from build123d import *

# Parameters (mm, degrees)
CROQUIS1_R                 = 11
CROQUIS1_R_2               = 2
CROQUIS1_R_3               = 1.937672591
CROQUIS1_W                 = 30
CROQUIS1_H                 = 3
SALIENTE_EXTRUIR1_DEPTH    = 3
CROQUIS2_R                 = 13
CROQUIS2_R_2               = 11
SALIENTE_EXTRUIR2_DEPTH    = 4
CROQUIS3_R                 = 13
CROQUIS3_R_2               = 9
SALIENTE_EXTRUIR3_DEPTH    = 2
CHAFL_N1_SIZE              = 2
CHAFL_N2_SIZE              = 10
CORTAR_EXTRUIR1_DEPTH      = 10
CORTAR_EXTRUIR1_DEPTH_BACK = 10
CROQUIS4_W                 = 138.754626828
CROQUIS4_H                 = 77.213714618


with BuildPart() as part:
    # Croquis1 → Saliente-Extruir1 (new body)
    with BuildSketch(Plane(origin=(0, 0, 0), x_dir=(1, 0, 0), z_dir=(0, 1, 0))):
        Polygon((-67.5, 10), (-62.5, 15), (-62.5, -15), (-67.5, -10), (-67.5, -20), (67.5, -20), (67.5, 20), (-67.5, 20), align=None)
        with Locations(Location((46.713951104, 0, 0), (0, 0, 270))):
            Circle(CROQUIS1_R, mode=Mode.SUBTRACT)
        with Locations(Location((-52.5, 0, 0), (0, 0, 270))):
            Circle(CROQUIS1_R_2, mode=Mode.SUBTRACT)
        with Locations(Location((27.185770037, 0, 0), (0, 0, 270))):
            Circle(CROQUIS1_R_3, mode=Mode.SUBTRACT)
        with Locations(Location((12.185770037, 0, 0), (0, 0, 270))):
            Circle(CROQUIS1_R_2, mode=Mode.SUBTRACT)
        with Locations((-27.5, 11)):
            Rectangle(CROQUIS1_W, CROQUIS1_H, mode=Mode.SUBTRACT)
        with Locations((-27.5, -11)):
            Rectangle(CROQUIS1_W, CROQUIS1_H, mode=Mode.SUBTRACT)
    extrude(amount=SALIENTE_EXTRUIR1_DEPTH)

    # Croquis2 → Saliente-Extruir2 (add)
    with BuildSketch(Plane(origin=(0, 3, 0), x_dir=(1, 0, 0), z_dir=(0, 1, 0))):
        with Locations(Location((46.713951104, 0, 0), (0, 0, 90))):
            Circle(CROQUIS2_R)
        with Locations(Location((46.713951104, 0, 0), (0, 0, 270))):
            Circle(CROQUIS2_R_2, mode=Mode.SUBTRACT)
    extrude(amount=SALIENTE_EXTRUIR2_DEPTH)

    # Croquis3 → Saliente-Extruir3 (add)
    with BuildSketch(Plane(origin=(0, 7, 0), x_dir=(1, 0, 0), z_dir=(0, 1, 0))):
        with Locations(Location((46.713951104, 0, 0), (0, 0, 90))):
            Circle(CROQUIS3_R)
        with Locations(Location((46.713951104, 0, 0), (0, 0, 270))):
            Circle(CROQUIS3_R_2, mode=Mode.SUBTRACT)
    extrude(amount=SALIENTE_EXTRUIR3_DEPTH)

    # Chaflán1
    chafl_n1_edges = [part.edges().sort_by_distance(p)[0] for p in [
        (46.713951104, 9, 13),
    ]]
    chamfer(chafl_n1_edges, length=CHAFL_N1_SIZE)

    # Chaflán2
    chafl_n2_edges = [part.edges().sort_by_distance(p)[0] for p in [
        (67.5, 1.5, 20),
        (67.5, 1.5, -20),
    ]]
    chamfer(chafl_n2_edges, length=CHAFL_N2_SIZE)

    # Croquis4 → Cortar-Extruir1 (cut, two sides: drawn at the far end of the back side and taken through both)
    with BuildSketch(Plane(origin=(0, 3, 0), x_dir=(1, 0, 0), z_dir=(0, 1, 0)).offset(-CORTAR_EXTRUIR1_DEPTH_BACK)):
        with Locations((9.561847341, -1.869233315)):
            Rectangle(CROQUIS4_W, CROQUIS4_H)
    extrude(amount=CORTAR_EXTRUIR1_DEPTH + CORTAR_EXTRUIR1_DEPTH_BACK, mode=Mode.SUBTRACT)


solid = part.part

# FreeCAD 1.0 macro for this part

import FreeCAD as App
import Part
import Sketcher
from FreeCAD import Vector
Q = App.Units.Quantity


def edges_at(feature, points):
    """Names of the edges that pass closest to the given points."""
    edges = feature.Shape.Edges
    near = lambda p: min(range(len(edges)), key=lambda i: edges[i].distToShape(Part.Vertex(*p))[0])
    return sorted({f"Edge{near(p) + 1}" for p in points})


def add_polygon(sketch, points):
    """Adds a closed chain of lines whose ends are joined by coincident constraints."""
    first, n = sketch.GeometryCount, len(points)
    for a, b in zip(points, points[1:] + points[:1]):
        sketch.addGeometry(Part.LineSegment(App.Vector(*a, 0), App.Vector(*b, 0)), False)
    for i in range(n):
        sketch.addConstraint(Sketcher.Constraint("Coincident", first + i, 2, first + (i + 1) % n, 1))

doc = App.newDocument("Part")
body = doc.addObject("PartDesign::Body", "Body")

sketch1 = doc.addObject("Sketcher::SketchObject", "Sketch")
body.addObject(sketch1)
sketch1.AttachmentSupport = (doc.XZ_Plane, [""])
sketch1.MapMode = "FlatFace"
add_polygon(sketch1, [(-67.5, -10), (-62.5, -15), (-62.5, 15), (-67.5, 10), (-67.5, 20), (67.5, 20), (67.5, -20), (-67.5, -20)])
add_polygon(sketch1, [(-12.5, 12.5), (-42.5, 12.5), (-42.5, 9.5), (-12.5, 9.5)])
sketch1.addGeometry(Part.Circle(Vector(-52.5, 0, 0), Vector(0, 0, 1), 2), False)
add_polygon(sketch1, [(-12.5, -9.5), (-42.5, -9.5), (-42.5, -12.5), (-12.5, -12.5)])
sketch1.addGeometry(Part.Circle(Vector(12.2, 0, 0), Vector(0, 0, 1), 2), False)
sketch1.addGeometry(Part.Circle(Vector(27.2, 0, 0), Vector(0, 0, 1), 1.9), False)
sketch1.addGeometry(Part.Circle(Vector(46.7, 0, 0), Vector(0, 0, 1), 11), False)
sketch1.addConstraint([
    Sketcher.Constraint("Vertical", 1),
    Sketcher.Constraint("Vertical", 3),
    Sketcher.Constraint("Horizontal", 4),
    Sketcher.Constraint("Vertical", 5),
    Sketcher.Constraint("Horizontal", 6),
    Sketcher.Constraint("Vertical", 7),
    Sketcher.Constraint("Horizontal", 8),
    Sketcher.Constraint("Vertical", 9),
    Sketcher.Constraint("Horizontal", 10),
    Sketcher.Constraint("Vertical", 11),
    Sketcher.Constraint("Horizontal", 13),
    Sketcher.Constraint("Vertical", 14),
    Sketcher.Constraint("Horizontal", 15),
    Sketcher.Constraint("Vertical", 16),
    Sketcher.Constraint("Equal", 12, 17),
    Sketcher.Constraint("Symmetric", 3, 2, 5, 2, -1, 1),
    Sketcher.Constraint("Symmetric", 2, 2, 7, 2, -1),
    Sketcher.Constraint("Symmetric", 9, 2, 13, 2, -1),
    Sketcher.Constraint("Symmetric", 11, 2, 15, 2, -1),
    Sketcher.Constraint("PointOnObject", 12, 3, -1),
    Sketcher.Constraint("PointOnObject", 17, 3, -1),
    Sketcher.Constraint("PointOnObject", 18, 3, -1),
    Sketcher.Constraint("PointOnObject", 19, 3, -1),
    Sketcher.Constraint("Perpendicular", 0, 2),
    Sketcher.Constraint("Equal", 15, 1),
    Sketcher.Constraint("Equal", 0, 2),
    Sketcher.Constraint("Diameter", 12, Q("4 mm")),
    Sketcher.Constraint("Diameter", 19, Q("22 mm")),
    Sketcher.Constraint("DistanceX", 4, 1, 4, 2, Q("135 mm")),
    Sketcher.Constraint("DistanceX", 8, 2, 8, 1, Q("30 mm")),
    Sketcher.Constraint("DistanceY", 3, 1, 3, 2, Q("10 mm")),
    Sketcher.Constraint("DistanceY", 5, 2, 5, 1, Q("40 mm")),
    Sketcher.Constraint("DistanceY", 9, 2, 9, 1, Q("3 mm")),
    Sketcher.Constraint("DistanceX", 17, 3, 18, 3, Q("15 mm")),
    Sketcher.Constraint("DistanceX", 0, 2, 12, 3, Q("10 mm")),
    Sketcher.Constraint("DistanceX", 12, 3, 8, 2, Q("10 mm")),
    Sketcher.Constraint("DistanceY", 13, 2, 9, 2, Q("19 mm")),
    Sketcher.Constraint("Diameter", 18, Q("3.875345 mm")),
    Sketcher.Constraint("DistanceX", -1, 1, 17, 3, Q("12.18577 mm")),
    Sketcher.Constraint("DistanceX", -1, 1, 19, 3, Q("46.713951 mm")),
])
pad1 = doc.addObject("PartDesign::Pad", "Pad")
body.addObject(pad1)
pad1.Profile = sketch1
pad1.Length = 3
pad1.Reversed = True

sketch2 = doc.addObject("Sketcher::SketchObject", "Sketch001")
body.addObject(sketch2)
sketch2.AttachmentSupport = (doc.XZ_Plane, [""])
sketch2.MapMode = "FlatFace"
sketch2.AttachmentOffset = App.Placement(Vector(0, 0, -3), App.Rotation())
sketch2.addGeometry([
    Part.Circle(Vector(47, 0, 0), Vector(0, 0, 1), 13),
    Part.Circle(Vector(47, 0, 0), Vector(0, 0, 1), 11),
], False)
sketch2.addConstraint([
    Sketcher.Constraint("Coincident", 1, 3, 0, 3),
    Sketcher.Constraint("PointOnObject", 0, 3, -1),
    Sketcher.Constraint("Diameter", 0, Q("26 mm")),
    Sketcher.Constraint("Diameter", 1, Q("22 mm")),
    Sketcher.Constraint("DistanceX", -1, 1, 0, 3, Q("46.713951 mm")),
])
pad2 = doc.addObject("PartDesign::Pad", "Pad001")
body.addObject(pad2)
pad2.Profile = sketch2
pad2.Length = 4
pad2.Reversed = True

sketch3 = doc.addObject("Sketcher::SketchObject", "Sketch002")
body.addObject(sketch3)
sketch3.AttachmentSupport = (doc.XZ_Plane, [""])
sketch3.MapMode = "FlatFace"
sketch3.AttachmentOffset = App.Placement(Vector(0, 0, -7), App.Rotation())
sketch3.addGeometry([
    Part.Circle(Vector(47, 0, 0), Vector(0, 0, 1), 13),
    Part.Circle(Vector(47, 0, 0), Vector(0, 0, 1), 9),
], False)
sketch3.addConstraint([
    Sketcher.Constraint("Coincident", 1, 3, 0, 3),
    Sketcher.Constraint("PointOnObject", 0, 3, -1),
    Sketcher.Constraint("Diameter", 0, Q("26 mm")),
    Sketcher.Constraint("Diameter", 1, Q("18 mm")),
    Sketcher.Constraint("DistanceX", -1, 1, 0, 3, Q("46.713951 mm")),
])
pad3 = doc.addObject("PartDesign::Pad", "Pad002")
body.addObject(pad3)
pad3.Profile = sketch3
pad3.Length = 2
pad3.Reversed = True
doc.recompute()

chamfer = doc.addObject("PartDesign::Chamfer", "Chamfer")
body.addObject(chamfer)
chamfer.Base = (pad3, edges_at(pad3, [(46.714, 9, 13)]))
chamfer.Size = 2
doc.recompute()

chamfer2 = doc.addObject("PartDesign::Chamfer", "Chamfer001")
body.addObject(chamfer2)
chamfer2.Base = (chamfer, edges_at(chamfer, [(67.5, 1.5, 20), (67.5, 1.5, -20)]))
chamfer2.Size = 10

sketch4 = doc.addObject("Sketcher::SketchObject", "Sketch003")
body.addObject(sketch4)
sketch4.AttachmentSupport = (doc.XZ_Plane, [""])
sketch4.MapMode = "FlatFace"
sketch4.AttachmentOffset = App.Placement(Vector(0, 0, -3), App.Rotation())
add_polygon(sketch4, [(-60, -37), (-60, 40), (79, 40), (79, -37)])
sketch4.addConstraint([
    Sketcher.Constraint("Vertical", 0),
    Sketcher.Constraint("Horizontal", 1),
    Sketcher.Constraint("Vertical", 2),
    Sketcher.Constraint("Horizontal", 3),
    Sketcher.Constraint("DistanceX", 1, 1, 1, 2, Q("138.754627 mm")),
    Sketcher.Constraint("DistanceY", 0, 1, 0, 2, Q("77.213715 mm")),
    Sketcher.Constraint("DistanceY", -1, 1, 0, 2, Q("40.476091 mm")),
    Sketcher.Constraint("DistanceX", -1, 1, 1, 2, Q("78.939161 mm")),
])
pocket1 = doc.addObject("PartDesign::Pocket", "Pocket")
body.addObject(pocket1)
pocket1.Profile = sketch4
pocket1.Type = "ThroughAll"
pocket1.Midplane = True

doc.recompute()
